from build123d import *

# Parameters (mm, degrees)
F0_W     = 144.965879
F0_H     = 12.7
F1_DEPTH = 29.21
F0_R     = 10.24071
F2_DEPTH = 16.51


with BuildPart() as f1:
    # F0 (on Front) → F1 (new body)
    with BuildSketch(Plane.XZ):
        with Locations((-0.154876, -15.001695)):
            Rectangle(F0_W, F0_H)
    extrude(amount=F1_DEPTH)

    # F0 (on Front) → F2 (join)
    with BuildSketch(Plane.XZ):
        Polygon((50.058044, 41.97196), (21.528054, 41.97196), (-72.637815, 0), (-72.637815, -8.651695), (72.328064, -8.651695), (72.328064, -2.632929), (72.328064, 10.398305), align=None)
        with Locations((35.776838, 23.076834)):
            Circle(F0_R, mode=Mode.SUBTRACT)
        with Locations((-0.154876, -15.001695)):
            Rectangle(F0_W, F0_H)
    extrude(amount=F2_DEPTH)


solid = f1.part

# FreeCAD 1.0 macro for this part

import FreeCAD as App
import Part
import Sketcher
from FreeCAD import Vector
Q = App.Units.Quantity

doc = App.newDocument("Part")
body = doc.addObject("PartDesign::Body", "Body")

sketch1 = body.newObject("Sketcher::SketchObject", "Sketch")
sketch1.AttachmentSupport = (doc.getObject("XZ_Plane"), [""])
sketch1.MapMode = "FlatFace"
sketch1.addGeometry(Part.LineSegment(Vector(-73, -9, 0), Vector(-73, -21, 0)), False)
sketch1.addGeometry(Part.LineSegment(Vector(-73, -21, 0), Vector(72, -21, 0)), False)
sketch1.addGeometry(Part.LineSegment(Vector(72, -21, 0), Vector(72, -9, 0)), False)
sketch1.addGeometry(Part.LineSegment(Vector(72, -9, 0), Vector(-73, -9, 0)), False)
sketch1.addConstraint(Sketcher.Constraint("Coincident", 0, 2, 1, 1))
sketch1.addConstraint(Sketcher.Constraint("Coincident", 1, 2, 2, 1))
sketch1.addConstraint(Sketcher.Constraint("Coincident", 2, 2, 3, 1))
sketch1.addConstraint(Sketcher.Constraint("Coincident", 3, 2, 0, 1))
sketch1.addConstraint(Sketcher.Constraint("Vertical", 0))
sketch1.addConstraint(Sketcher.Constraint("Horizontal", 1))
sketch1.addConstraint(Sketcher.Constraint("Vertical", 2))
sketch1.addConstraint(Sketcher.Constraint("Horizontal", 3))
sketch1.addConstraint(Sketcher.Constraint("DistanceY", 0, 2, 0, 1, Q("0.5 in")))
sketch1.addConstraint(Sketcher.Constraint("DistanceX", 1, 1, 1, 2, Q("144.965879 mm")))
sketch1.addConstraint(Sketcher.Constraint("DistanceX", 0, 2, -1, 1, Q("72.637816 mm")))
sketch1.addConstraint(Sketcher.Constraint("DistanceY", 0, 2, -1, 1, Q("21.351695 mm")))
pad1 = body.newObject("PartDesign::Pad", "Pad")
pad1.Profile = sketch1
pad1.Length = Q("1.15 in")

sketch2 = body.newObject("Sketcher::SketchObject", "Sketch001")
sketch2.AttachmentSupport = (doc.getObject("XZ_Plane"), [""])
sketch2.MapMode = "FlatFace"
sketch2.addGeometry(Part.LineSegment(Vector(50.058044, 41.97196, 0), Vector(21.528054, 41.97196, 0)), False)
sketch2.addGeometry(Part.LineSegment(Vector(21.528054, 41.97196, 0), Vector(-72.637815, 0, 0)), False)
sketch2.addGeometry(Part.LineSegment(Vector(-72.637815, 0, 0), Vector(-72.637815, -8.651695, 0)), False)
sketch2.addGeometry(Part.LineSegment(Vector(-72.637816, -8.651695, 0), Vector(-72.637815, -8.651695, 0)), False)
sketch2.addGeometry(Part.LineSegment(Vector(-72.637816, -8.651695, 0), Vector(-72.637816, -21.351695, 0)), False)
sketch2.addGeometry(Part.LineSegment(Vector(-72.637816, -21.351695, 0), Vector(72.328063, -21.351695, 0)), False)
sketch2.addGeometry(Part.LineSegment(Vector(72.328063, -21.351695, 0), Vector(72.328063, -8.651695, 0)), False)
sketch2.addGeometry(Part.LineSegment(Vector(72.328064, -8.651695, 0), Vector(72.328063, -8.651695, 0)), False)
sketch2.addGeometry(Part.LineSegment(Vector(72.328064, -8.651695, 0), Vector(72.328064, 10.398305, 0)), False)
sketch2.addGeometry(Part.LineSegment(Vector(72.328064, 10.398305, 0), Vector(50.058044, 41.97196, 0)), False)
sketch2.addGeometry(Part.Circle(Vector(35.776838, 23.076834, 0), Vector(0, 0, 1), 10.24071), False)
sketch2.addConstraint(Sketcher.Constraint("Coincident", 0, 2, 1, 1))
sketch2.addConstraint(Sketcher.Constraint("Coincident", 1, 2, 2, 1))
sketch2.addConstraint(Sketcher.Constraint("Coincident", 2, 2, 3, 1))
sketch2.addConstraint(Sketcher.Constraint("Coincident", 3, 2, 4, 1))
sketch2.addConstraint(Sketcher.Constraint("Coincident", 4, 2, 5, 1))
sketch2.addConstraint(Sketcher.Constraint("Coincident", 5, 2, 6, 1))
sketch2.addConstraint(Sketcher.Constraint("Coincident", 6, 2, 7, 1))
sketch2.addConstraint(Sketcher.Constraint("Coincident", 7, 2, 8, 1))
sketch2.addConstraint(Sketcher.Constraint("Coincident", 8, 2, 9, 1))
sketch2.addConstraint(Sketcher.Constraint("Coincident", 9, 2, 0, 1))
sketch2.addConstraint(Sketcher.Constraint("Horizontal", 0))
sketch2.addConstraint(Sketcher.Constraint("Vertical", 2))
sketch2.addConstraint(Sketcher.Constraint("Horizontal", 3))
sketch2.addConstraint(Sketcher.Constraint("Vertical", 4))
sketch2.addConstraint(Sketcher.Constraint("Horizontal", 5))
sketch2.addConstraint(Sketcher.Constraint("Vertical", 6))
sketch2.addConstraint(Sketcher.Constraint("Horizontal", 7))
sketch2.addConstraint(Sketcher.Constraint("Vertical", 8))
sketch2.addConstraint(Sketcher.Constraint("PointOnObject", 1, 2, -1))
sketch2.addConstraint(Sketcher.Constraint("DistanceY", 4, 2, 4, 1, Q("0.5 in")))
sketch2.addConstraint(Sketcher.Constraint("DistanceY", 6, 1, 6, 2, Q("0.5 in")))
sketch2.addConstraint(Sketcher.Constraint("DistanceY", 8, 1, 8, 2, Q("0.75 in")))
sketch2.addConstraint(Sketcher.Constraint("Diameter", 10, Q("20.48142 mm")))
sketch2.addConstraint(Sketcher.Constraint("DistanceX", 0, 2, 0, 1, Q("28.52999 mm")))
sketch2.addConstraint(Sketcher.Constraint("DistanceX", 5, 1, 5, 2, Q("144.965879 mm")))
sketch2.addConstraint(Sketcher.Constraint("Distance", 9, Q("38.63741 mm")))
sketch2.addConstraint(Sketcher.Constraint("DistanceY", 2, 2, 2, 1, Q("8.651695 mm")))
sketch2.addConstraint(Sketcher.Constraint("DistanceY", -1, 1, 0, 2, Q("41.97196 mm")))
sketch2.addConstraint(Sketcher.Constraint("DistanceX", 1, 2, 0, 2, Q("94.165869 mm")))
sketch2.addConstraint(Sketcher.Constraint("DistanceY", 2, 2, 10, 3, Q("31.728529 mm")))
sketch2.addConstraint(Sketcher.Constraint("DistanceX", 3, 2, 0, 2, Q("94.165869 mm")))
sketch2.addConstraint(Sketcher.Constraint("DistanceX", -1, 1, 10, 3, Q("35.776838 mm")))
sketch2.addConstraint(Sketcher.Constraint("DistanceX", -1, 1, 0, 2, Q("21.528054 mm")))
pad2 = body.newObject("PartDesign::Pad", "Pad001")
pad2.Profile = sketch2
pad2.Length = Q("0.65 in")

doc.recompute()
